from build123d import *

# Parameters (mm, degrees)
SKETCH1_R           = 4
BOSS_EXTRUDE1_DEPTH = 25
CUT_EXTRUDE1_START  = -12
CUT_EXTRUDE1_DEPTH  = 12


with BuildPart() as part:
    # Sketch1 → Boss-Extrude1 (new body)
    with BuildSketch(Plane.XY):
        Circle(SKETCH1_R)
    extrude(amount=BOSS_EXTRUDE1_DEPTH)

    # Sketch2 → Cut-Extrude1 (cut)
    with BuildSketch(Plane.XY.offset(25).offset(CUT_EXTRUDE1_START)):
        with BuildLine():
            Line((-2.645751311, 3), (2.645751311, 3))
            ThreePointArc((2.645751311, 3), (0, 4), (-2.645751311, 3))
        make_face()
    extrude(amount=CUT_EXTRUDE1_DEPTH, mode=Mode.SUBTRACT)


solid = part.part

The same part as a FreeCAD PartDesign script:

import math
import FreeCAD as App
import Part
import Sketcher

doc = App.newDocument("Part")
body = doc.addObject("PartDesign::Body", "Body")

sketch1 = body.newObject("Sketcher::SketchObject", "Sketch")
sketch1.AttachmentSupport = (doc.getObject("XY_Plane"), [""])
sketch1.MapMode = "FlatFace"
sketch1.addGeometry(Part.Circle(App.Vector(0, 0, 0), App.Vector(0, 0, 1), 4), False)
sketch1.addConstraint([
    Sketcher.Constraint("Coincident", 0, 3, -1, 1),
    Sketcher.Constraint("Diameter", 0, 8.0),
])
pad1 = body.newObject("PartDesign::Pad", "Pad")
pad1.Profile = sketch1
pad1.Length = 25

sketch2 = body.newObject("Sketcher::SketchObject", "Sketch001")
sketch2.AttachmentSupport = (doc.getObject("XY_Plane"), [""])
sketch2.MapMode = "FlatFace"
sketch2.AttachmentOffset = App.Placement(App.Vector(0, 0, 13), App.Rotation())
sketch2.addGeometry([
    Part.LineSegment(App.Vector(-2.6, 3, 0), App.Vector(2.6, 3, 0)),
    Part.ArcOfCircle(Part.Circle(App.Vector(0, 0, 0), App.Vector(0, 0, 1), 4), math.radians(49), math.radians(131)),
], False)
sketch2.addConstraint([
    Sketcher.Constraint("Coincident", 0, 1, 1, 2),
    Sketcher.Constraint("Coincident", 1, 1, 0, 2),
    Sketcher.Constraint("Horizontal", 0),
    Sketcher.Constraint("Coincident", 1, 3, -1, 1),
    Sketcher.Constraint("Radius", 1, 4.0),
    Sketcher.Constraint("DistanceY", -1, 1, 0, 1, 3.0),
])
pocket1 = body.newObject("PartDesign::Pocket", "Pocket")
pocket1.Profile = sketch2
pocket1.Length = 12
pocket1.Reversed = True

doc.recompute()
